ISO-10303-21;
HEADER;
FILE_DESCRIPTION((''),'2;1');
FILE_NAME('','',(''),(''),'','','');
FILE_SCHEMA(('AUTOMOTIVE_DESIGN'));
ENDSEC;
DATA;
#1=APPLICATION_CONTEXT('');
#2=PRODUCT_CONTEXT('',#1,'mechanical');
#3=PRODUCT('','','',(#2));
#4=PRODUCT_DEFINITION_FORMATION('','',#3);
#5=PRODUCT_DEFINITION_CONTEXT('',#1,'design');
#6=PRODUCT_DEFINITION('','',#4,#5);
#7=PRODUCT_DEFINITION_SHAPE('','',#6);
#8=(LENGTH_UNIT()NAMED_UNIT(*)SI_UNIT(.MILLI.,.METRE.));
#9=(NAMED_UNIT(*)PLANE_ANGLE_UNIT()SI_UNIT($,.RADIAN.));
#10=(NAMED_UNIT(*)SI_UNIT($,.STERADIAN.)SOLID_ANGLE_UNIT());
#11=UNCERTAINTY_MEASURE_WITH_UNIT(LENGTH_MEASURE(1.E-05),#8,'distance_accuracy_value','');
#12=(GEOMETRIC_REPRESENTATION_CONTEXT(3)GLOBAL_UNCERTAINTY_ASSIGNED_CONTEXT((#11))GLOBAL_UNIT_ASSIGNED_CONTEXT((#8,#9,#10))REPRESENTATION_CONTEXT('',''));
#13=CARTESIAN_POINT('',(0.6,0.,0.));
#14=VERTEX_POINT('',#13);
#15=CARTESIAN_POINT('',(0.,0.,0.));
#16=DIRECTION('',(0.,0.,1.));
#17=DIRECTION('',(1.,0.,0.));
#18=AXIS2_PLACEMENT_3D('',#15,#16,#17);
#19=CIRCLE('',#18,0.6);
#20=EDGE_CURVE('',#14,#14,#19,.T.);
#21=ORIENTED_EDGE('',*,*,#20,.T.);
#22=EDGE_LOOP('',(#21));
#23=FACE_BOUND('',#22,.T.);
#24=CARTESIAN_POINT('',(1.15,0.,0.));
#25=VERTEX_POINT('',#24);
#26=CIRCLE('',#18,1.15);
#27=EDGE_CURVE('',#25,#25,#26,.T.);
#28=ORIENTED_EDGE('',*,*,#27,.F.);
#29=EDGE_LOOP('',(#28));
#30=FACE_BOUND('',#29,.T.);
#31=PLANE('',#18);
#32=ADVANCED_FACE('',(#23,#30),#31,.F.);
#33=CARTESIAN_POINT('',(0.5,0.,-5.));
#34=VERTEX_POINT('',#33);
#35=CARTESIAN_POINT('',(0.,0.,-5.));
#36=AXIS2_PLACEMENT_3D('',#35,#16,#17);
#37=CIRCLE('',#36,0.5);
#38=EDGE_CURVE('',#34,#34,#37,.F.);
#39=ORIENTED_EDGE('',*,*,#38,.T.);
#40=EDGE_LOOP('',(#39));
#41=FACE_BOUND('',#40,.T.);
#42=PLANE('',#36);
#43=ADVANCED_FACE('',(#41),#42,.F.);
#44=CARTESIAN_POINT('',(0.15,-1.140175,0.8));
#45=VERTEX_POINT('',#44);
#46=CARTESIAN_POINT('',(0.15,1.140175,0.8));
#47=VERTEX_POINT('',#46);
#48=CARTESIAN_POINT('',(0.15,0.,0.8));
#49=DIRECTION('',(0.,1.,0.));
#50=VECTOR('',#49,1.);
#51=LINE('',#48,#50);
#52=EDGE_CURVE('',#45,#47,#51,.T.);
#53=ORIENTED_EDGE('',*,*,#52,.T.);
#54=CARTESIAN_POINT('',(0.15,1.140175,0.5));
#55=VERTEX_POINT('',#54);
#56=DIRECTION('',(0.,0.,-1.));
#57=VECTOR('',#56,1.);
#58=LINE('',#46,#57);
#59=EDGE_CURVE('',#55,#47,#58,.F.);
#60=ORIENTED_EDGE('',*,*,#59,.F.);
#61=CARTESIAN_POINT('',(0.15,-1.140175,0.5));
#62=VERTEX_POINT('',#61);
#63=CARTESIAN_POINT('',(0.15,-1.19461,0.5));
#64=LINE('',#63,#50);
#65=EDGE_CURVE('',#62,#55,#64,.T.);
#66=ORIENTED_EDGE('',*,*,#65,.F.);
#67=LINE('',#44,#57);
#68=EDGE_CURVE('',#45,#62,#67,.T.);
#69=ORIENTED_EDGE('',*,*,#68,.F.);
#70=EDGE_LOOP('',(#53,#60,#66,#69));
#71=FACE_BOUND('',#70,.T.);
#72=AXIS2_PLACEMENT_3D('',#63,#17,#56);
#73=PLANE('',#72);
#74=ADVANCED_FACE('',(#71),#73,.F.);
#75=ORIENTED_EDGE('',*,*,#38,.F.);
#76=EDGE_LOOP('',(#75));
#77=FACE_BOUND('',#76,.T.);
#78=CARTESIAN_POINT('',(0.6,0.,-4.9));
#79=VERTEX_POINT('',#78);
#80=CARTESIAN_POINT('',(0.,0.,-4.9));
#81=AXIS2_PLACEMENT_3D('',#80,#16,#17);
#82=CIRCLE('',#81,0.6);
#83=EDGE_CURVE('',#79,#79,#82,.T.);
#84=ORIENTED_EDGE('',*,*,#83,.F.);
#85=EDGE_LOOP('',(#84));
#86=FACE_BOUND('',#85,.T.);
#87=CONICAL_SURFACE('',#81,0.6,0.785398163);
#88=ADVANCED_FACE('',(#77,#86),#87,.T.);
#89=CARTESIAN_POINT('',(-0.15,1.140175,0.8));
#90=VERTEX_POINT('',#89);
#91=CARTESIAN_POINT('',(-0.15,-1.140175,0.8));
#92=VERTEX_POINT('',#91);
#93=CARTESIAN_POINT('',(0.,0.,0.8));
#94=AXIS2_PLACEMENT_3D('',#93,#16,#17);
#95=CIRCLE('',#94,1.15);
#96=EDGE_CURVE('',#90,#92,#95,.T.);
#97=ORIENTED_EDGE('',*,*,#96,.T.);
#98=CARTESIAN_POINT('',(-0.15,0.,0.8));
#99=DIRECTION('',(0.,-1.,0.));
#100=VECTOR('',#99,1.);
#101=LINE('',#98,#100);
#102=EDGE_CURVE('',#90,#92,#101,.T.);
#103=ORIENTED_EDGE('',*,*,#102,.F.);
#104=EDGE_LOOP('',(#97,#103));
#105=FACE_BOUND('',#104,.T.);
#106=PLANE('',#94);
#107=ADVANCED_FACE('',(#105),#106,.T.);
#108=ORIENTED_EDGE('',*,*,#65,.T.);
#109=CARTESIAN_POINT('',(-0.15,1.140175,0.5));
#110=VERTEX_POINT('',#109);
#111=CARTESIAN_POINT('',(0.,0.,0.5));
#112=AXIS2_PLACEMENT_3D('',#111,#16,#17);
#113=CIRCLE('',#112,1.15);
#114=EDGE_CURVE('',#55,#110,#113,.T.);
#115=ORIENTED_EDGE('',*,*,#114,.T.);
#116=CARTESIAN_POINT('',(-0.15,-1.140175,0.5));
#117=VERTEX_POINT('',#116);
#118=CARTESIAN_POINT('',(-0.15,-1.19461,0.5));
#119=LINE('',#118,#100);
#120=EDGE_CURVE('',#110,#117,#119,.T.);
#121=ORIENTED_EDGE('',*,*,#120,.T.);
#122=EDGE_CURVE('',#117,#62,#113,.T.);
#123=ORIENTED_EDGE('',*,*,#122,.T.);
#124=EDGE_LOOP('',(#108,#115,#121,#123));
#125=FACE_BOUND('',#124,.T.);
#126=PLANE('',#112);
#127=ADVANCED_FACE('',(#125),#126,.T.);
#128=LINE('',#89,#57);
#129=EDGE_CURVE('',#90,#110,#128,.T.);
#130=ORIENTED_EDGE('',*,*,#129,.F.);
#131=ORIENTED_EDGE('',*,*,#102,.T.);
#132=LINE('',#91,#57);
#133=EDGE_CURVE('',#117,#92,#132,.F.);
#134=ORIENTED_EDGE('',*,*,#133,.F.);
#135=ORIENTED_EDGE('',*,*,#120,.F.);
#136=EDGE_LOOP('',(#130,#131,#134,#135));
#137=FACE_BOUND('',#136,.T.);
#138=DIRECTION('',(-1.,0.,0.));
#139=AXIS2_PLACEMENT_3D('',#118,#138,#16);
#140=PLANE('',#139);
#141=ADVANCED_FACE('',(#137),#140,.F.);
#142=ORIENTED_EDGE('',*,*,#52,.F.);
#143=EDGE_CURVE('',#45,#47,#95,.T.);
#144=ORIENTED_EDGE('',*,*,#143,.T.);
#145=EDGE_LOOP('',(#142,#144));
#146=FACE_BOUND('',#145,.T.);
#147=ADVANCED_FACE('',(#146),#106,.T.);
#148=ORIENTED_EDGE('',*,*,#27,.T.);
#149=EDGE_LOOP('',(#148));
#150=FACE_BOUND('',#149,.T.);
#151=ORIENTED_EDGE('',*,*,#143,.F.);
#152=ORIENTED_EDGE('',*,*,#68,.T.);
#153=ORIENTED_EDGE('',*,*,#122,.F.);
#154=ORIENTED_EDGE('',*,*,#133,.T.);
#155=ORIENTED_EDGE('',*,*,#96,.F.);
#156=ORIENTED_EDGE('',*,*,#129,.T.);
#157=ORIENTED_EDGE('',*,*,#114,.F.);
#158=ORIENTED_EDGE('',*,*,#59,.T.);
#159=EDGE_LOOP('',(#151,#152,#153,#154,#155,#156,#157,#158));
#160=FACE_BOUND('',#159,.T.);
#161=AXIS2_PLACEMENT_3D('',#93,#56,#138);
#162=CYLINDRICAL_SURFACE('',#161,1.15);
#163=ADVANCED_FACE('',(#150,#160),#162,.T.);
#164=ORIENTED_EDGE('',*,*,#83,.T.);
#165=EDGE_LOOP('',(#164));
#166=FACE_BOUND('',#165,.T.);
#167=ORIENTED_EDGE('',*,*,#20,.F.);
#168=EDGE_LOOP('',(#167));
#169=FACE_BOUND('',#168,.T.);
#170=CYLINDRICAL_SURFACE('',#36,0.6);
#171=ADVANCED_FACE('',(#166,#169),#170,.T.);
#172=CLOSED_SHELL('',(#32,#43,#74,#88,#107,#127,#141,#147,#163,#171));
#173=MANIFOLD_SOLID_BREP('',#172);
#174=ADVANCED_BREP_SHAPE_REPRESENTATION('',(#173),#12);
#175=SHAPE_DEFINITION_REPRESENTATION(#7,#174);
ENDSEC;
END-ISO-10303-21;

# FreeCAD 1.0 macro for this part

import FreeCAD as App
import Part
import Sketcher
from FreeCAD import Vector
Q = App.Units.Quantity


def edges_at(feature, points):
    """Names of the edges that pass closest to the given points."""
    edges = feature.Shape.Edges
    near = lambda p: min(range(len(edges)), key=lambda i: edges[i].distToShape(Part.Vertex(*p))[0])
    return sorted({f"Edge{near(p) + 1}" for p in points})


def add_polygon(sketch, points):
    """Adds a closed chain of lines whose ends are joined by coincident constraints."""
    first, n = sketch.GeometryCount, len(points)
    for a, b in zip(points, points[1:] + points[:1]):
        sketch.addGeometry(Part.LineSegment(App.Vector(*a, 0), App.Vector(*b, 0)), False)
    for i in range(n):
        sketch.addConstraint(Sketcher.Constraint("Coincident", first + i, 2, first + (i + 1) % n, 1))

doc = App.newDocument("Part")
body = doc.addObject("PartDesign::Body", "Body")

# Sketch on XY plane
sketch1 = body.newObject("Sketcher::SketchObject", "Sketch")
sketch1.AttachmentSupport = (doc.getObject("XY_Plane"), [""])
sketch1.MapMode = "FlatFace"
sketch1.addGeometry(Part.Circle(Vector(0, 0, 0), Vector(0, 0, 1), 1.1), False)
sketch1.addConstraint(Sketcher.Constraint("Coincident", 0, 3, -1, 1))
sketch1.addConstraint(Sketcher.Constraint("Diameter", 0, Q("2.3 mm")))
pad1 = body.newObject("PartDesign::Pad", "Pad")
pad1.Profile = sketch1
pad1.Length = 0.8

# Sketch on XY plane
sketch2 = body.newObject("Sketcher::SketchObject", "Sketch001")
sketch2.AttachmentSupport = (doc.getObject("XY_Plane"), [""])
sketch2.MapMode = "FlatFace"
sketch2.addGeometry(Part.Circle(Vector(0, 0, 0), Vector(0, 0, 1), 0.6), False)
sketch2.addConstraint(Sketcher.Constraint("Coincident", 0, 3, -1, 1))
sketch2.addConstraint(Sketcher.Constraint("Diameter", 0, Q("1.2 mm")))
pad2 = body.newObject("PartDesign::Pad", "Pad001")
pad2.Profile = sketch2
pad2.Length = 5
pad2.Reversed = True
doc.recompute()

chamfer = body.newObject("PartDesign::Chamfer", "Chamfer")
chamfer.Base = (pad2, edges_at(pad2, [(-0.6, 0, -5)]))
chamfer.Size = 0.1

# Sketch on XY plane
sketch3 = body.newObject("Sketcher::SketchObject", "Sketch002")
sketch3.AttachmentSupport = (doc.getObject("XY_Plane"), [""])
sketch3.MapMode = "FlatFace"
sketch3.AttachmentOffset = App.Placement(Vector(0, 0, 0.8), App.Rotation())
add_polygon(sketch3, [(-0.15, 1.19), (-0.15, -1.19), (0.15, -1.19), (0.15, 1.19)])  # lines 0-3
sketch3.addConstraint(Sketcher.Constraint("Vertical", 0))
sketch3.addConstraint(Sketcher.Constraint("Horizontal", 1))
sketch3.addConstraint(Sketcher.Constraint("Vertical", 2))
sketch3.addConstraint(Sketcher.Constraint("Horizontal", 3))
sketch3.addConstraint(Sketcher.Constraint("Symmetric", 0, 2, 2, 2, -1, 1))
sketch3.addConstraint(Sketcher.Constraint("DistanceX", 1, 1, 1, 2, Q("0.3 mm")))
sketch3.addConstraint(Sketcher.Constraint("DistanceY", 0, 2, 0, 1, Q("2.38922 mm")))
pocket1 = body.newObject("PartDesign::Pocket", "Pocket")
pocket1.Profile = sketch3
pocket1.Length = 0.3

doc.recompute()
